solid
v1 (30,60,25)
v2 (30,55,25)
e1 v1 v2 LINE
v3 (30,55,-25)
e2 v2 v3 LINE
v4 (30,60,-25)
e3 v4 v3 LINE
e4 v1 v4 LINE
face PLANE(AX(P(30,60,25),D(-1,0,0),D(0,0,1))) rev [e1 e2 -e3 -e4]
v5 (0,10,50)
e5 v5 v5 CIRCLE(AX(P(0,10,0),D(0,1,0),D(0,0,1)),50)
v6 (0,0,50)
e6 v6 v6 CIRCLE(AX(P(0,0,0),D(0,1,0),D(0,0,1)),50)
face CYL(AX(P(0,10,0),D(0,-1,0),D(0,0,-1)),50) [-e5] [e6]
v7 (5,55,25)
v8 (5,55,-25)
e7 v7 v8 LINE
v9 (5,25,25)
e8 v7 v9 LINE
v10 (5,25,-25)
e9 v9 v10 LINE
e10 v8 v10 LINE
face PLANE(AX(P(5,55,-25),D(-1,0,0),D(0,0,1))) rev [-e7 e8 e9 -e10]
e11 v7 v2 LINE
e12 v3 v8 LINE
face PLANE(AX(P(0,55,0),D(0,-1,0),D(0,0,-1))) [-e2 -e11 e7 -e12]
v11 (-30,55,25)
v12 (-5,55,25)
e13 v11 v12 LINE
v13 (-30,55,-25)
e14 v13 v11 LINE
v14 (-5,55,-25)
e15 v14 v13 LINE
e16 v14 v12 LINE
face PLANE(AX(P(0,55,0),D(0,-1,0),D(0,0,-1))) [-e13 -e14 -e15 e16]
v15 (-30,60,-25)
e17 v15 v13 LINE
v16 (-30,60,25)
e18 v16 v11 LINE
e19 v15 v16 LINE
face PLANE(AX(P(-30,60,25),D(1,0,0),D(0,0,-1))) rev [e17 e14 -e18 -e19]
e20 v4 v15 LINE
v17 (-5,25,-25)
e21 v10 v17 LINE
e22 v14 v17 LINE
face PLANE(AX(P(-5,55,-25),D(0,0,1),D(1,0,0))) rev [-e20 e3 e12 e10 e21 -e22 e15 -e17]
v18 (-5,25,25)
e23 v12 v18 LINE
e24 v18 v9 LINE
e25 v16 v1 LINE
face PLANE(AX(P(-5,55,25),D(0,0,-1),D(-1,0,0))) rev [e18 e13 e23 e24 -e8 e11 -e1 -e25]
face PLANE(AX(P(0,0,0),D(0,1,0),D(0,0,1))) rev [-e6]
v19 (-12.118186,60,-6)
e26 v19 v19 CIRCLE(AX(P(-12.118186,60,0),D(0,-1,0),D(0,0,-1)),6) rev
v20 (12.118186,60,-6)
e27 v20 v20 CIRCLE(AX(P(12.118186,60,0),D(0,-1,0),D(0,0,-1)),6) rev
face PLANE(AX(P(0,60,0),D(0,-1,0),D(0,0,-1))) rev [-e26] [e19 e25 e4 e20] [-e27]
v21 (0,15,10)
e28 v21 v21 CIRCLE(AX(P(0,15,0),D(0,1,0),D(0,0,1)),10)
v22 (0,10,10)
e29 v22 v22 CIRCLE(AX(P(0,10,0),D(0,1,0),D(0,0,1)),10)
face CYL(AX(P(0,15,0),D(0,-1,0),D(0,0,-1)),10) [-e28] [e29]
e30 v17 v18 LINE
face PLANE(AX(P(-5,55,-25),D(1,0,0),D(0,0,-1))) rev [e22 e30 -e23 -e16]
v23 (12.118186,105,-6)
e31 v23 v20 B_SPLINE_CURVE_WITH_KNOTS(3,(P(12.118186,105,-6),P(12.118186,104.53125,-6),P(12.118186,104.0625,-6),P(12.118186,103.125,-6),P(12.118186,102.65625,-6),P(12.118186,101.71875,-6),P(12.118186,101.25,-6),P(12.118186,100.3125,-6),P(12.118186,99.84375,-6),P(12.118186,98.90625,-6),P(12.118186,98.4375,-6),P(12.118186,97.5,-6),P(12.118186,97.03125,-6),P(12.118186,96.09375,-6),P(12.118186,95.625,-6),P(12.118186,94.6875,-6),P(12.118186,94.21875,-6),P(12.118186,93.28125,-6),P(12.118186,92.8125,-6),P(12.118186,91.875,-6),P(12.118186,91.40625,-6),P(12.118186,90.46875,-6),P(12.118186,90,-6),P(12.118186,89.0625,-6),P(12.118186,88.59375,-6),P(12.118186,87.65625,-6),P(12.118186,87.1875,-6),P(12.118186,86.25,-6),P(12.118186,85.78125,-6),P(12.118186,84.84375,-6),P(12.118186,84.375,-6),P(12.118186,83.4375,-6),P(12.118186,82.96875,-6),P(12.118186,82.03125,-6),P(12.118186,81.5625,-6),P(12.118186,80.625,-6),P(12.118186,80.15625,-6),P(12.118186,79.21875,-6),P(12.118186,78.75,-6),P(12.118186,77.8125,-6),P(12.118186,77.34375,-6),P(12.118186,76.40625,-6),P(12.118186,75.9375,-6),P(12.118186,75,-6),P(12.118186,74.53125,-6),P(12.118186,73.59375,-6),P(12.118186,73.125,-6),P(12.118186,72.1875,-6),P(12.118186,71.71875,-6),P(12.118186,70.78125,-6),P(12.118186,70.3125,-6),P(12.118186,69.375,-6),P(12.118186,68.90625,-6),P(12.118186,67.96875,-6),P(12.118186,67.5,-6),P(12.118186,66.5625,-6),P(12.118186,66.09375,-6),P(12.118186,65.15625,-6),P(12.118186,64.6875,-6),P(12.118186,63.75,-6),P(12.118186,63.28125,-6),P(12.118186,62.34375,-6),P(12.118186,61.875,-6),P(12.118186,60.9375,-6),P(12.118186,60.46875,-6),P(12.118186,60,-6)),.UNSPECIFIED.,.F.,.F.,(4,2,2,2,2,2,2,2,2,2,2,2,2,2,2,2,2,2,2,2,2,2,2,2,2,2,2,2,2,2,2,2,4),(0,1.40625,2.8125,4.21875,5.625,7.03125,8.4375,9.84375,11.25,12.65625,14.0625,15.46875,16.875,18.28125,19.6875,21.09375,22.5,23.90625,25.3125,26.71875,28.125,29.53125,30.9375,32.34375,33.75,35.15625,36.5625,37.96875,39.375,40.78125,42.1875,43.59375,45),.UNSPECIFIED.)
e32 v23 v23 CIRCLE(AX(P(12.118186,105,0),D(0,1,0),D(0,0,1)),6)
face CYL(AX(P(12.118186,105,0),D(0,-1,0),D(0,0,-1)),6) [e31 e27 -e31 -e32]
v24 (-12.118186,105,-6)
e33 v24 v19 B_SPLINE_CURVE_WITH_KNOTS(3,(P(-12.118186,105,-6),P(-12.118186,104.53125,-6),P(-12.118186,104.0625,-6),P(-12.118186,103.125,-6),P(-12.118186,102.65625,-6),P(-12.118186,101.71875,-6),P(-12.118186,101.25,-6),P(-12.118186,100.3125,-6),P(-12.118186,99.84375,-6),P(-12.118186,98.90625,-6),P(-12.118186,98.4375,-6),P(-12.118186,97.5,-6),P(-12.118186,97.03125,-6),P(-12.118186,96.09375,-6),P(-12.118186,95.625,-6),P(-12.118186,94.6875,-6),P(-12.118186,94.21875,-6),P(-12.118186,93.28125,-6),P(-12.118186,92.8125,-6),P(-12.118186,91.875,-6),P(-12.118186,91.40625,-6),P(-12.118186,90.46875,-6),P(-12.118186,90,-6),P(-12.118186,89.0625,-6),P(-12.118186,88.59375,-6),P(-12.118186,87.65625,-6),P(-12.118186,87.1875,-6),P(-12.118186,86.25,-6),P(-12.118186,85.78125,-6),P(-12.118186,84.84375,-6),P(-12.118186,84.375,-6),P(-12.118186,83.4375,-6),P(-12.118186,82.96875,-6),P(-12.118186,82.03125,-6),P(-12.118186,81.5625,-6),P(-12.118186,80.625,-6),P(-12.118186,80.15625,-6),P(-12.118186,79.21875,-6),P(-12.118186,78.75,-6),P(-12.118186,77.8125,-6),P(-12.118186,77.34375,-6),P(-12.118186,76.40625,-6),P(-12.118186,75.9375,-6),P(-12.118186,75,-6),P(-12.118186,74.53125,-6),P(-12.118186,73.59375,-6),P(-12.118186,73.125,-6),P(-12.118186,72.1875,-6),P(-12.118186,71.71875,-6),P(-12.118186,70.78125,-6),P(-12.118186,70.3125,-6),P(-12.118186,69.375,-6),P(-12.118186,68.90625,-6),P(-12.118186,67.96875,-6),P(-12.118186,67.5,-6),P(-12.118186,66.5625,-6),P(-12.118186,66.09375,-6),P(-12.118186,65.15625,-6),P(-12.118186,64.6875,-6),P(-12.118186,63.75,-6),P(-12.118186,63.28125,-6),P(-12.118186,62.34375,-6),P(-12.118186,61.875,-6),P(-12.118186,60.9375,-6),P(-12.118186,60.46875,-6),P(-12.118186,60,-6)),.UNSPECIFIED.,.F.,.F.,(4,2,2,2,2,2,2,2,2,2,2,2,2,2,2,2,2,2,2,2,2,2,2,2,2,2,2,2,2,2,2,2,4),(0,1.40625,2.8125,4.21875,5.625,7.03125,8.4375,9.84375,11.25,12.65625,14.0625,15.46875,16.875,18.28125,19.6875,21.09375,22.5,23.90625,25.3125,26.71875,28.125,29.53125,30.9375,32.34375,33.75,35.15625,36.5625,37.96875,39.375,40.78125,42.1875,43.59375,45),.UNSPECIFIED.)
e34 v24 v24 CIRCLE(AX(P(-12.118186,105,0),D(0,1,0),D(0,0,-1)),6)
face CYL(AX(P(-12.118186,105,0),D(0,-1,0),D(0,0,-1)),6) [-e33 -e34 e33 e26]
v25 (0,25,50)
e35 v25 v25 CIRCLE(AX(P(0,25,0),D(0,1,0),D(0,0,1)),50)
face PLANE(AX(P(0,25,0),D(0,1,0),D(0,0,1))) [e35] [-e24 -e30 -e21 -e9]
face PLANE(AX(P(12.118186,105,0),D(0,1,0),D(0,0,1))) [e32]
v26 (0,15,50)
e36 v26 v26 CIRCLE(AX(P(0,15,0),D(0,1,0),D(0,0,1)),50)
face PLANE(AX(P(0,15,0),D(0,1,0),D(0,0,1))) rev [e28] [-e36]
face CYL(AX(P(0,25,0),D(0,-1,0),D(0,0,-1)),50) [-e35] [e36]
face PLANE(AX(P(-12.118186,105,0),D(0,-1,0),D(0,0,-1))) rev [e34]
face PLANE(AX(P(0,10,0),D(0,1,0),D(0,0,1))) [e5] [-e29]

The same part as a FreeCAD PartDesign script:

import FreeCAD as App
import Part
import Sketcher
from FreeCAD import Vector
Q = App.Units.Quantity

doc = App.newDocument("Part")
body = doc.addObject("PartDesign::Body", "Body")

# Sketch on XZ plane
sketch1 = doc.addObject("Sketcher::SketchObject", "Sketch")
body.addObject(sketch1)
sketch1.AttachmentSupport = (doc.XZ_Plane, [""])
sketch1.MapMode = "FlatFace"
sketch1.addGeometry(Part.Circle(Vector(0, 0, 0), Vector(0, 0, 1), 50), False)
sketch1.addConstraint(Sketcher.Constraint("Coincident", 0, 3, -1, 1))
sketch1.addConstraint(Sketcher.Constraint("Diameter", 0, Q("100 mm")))
pad1 = doc.addObject("PartDesign::Pad", "Pad")
body.addObject(pad1)
pad1.Profile = sketch1
pad1.Length = 10
pad1.Reversed = True

# Sketch on XZ plane
sketch2 = doc.addObject("Sketcher::SketchObject", "Sketch001")
body.addObject(sketch2)
sketch2.AttachmentSupport = (doc.XZ_Plane, [""])
sketch2.MapMode = "FlatFace"
sketch2.AttachmentOffset = App.Placement(Vector(0, 0, -10), App.Rotation())
sketch2.addGeometry(Part.Circle(Vector(0, 0, 0), Vector(0, 0, 1), 10), False)
sketch2.addConstraint(Sketcher.Constraint("Coincident", 0, 3, -1, 1))
sketch2.addConstraint(Sketcher.Constraint("Diameter", 0, Q("20 mm")))
pad2 = doc.addObject("PartDesign::Pad", "Pad001")
body.addObject(pad2)
pad2.Profile = sketch2
pad2.Length = 5
pad2.Reversed = True

# Sketch on XZ plane
sketch3 = doc.addObject("Sketcher::SketchObject", "Sketch002")
body.addObject(sketch3)
sketch3.AttachmentSupport = (doc.XZ_Plane, [""])
sketch3.MapMode = "FlatFace"
sketch3.AttachmentOffset = App.Placement(Vector(0, 0, -15), App.Rotation())
sketch3.addGeometry(Part.Circle(Vector(0, 0, 0), Vector(0, 0, 1), 50), False)
sketch3.addConstraint(Sketcher.Constraint("Coincident", 0, 3, -1, 1))
sketch3.addConstraint(Sketcher.Constraint("Diameter", 0, Q("100 mm")))
pad3 = doc.addObject("PartDesign::Pad", "Pad002")
body.addObject(pad3)
pad3.Profile = sketch3
pad3.Length = 10
pad3.Reversed = True

# Sketch on XZ plane
sketch4 = doc.addObject("Sketcher::SketchObject", "Sketch003")
body.addObject(sketch4)
sketch4.AttachmentSupport = (doc.XZ_Plane, [""])
sketch4.MapMode = "FlatFace"
sketch4.AttachmentOffset = App.Placement(Vector(0, 0, -25), App.Rotation())
sketch4.addGeometry(Part.LineSegment(Vector(-5, -25, 0), Vector(-5, 25, 0)), False)
sketch4.addGeometry(Part.LineSegment(Vector(-5, 25, 0), Vector(5, 25, 0)), False)
sketch4.addGeometry(Part.LineSegment(Vector(5, 25, 0), Vector(5, -25, 0)), False)
sketch4.addGeometry(Part.LineSegment(Vector(5, -25, 0), Vector(-5, -25, 0)), False)
sketch4.addConstraint(Sketcher.Constraint("Coincident", 0, 2, 1, 1))
sketch4.addConstraint(Sketcher.Constraint("Coincident", 1, 2, 2, 1))
sketch4.addConstraint(Sketcher.Constraint("Coincident", 2, 2, 3, 1))
sketch4.addConstraint(Sketcher.Constraint("Coincident", 3, 2, 0, 1))
sketch4.addConstraint(Sketcher.Constraint("Vertical", 0))
sketch4.addConstraint(Sketcher.Constraint("Horizontal", 1))
sketch4.addConstraint(Sketcher.Constraint("Vertical", 2))
sketch4.addConstraint(Sketcher.Constraint("Horizontal", 3))
sketch4.addConstraint(Sketcher.Constraint("Symmetric", 0, 2, 2, 2, -1, 1))
sketch4.addConstraint(Sketcher.Constraint("DistanceX", 1, 1, 1, 2, Q("10 mm")))
sketch4.addConstraint(Sketcher.Constraint("DistanceY", 0, 1, 0, 2, Q("50 mm")))
pad4 = doc.addObject("PartDesign::Pad", "Pad003")
body.addObject(pad4)
pad4.Profile = sketch4
pad4.Length = 30
pad4.Reversed = True

# Sketch on XZ plane
sketch5 = doc.addObject("Sketcher::SketchObject", "Sketch004")
body.addObject(sketch5)
sketch5.AttachmentSupport = (doc.XZ_Plane, [""])
sketch5.MapMode = "FlatFace"
sketch5.AttachmentOffset = App.Placement(Vector(0, 0, -55), App.Rotation())
sketch5.addGeometry(Part.LineSegment(Vector(-30, -25, 0), Vector(-30, 25, 0)), False)
sketch5.addGeometry(Part.LineSegment(Vector(-30, 25, 0), Vector(30, 25, 0)), False)
sketch5.addGeometry(Part.LineSegment(Vector(30, 25, 0), Vector(30, -25, 0)), False)
sketch5.addGeometry(Part.LineSegment(Vector(30, -25, 0), Vector(-30, -25, 0)), False)
sketch5.addConstraint(Sketcher.Constraint("Coincident", 0, 2, 1, 1))
sketch5.addConstraint(Sketcher.Constraint("Coincident", 1, 2, 2, 1))
sketch5.addConstraint(Sketcher.Constraint("Coincident", 2, 2, 3, 1))
sketch5.addConstraint(Sketcher.Constraint("Coincident", 3, 2, 0, 1))
sketch5.addConstraint(Sketcher.Constraint("Vertical", 0))
sketch5.addConstraint(Sketcher.Constraint("Horizontal", 1))
sketch5.addConstraint(Sketcher.Constraint("Vertical", 2))
sketch5.addConstraint(Sketcher.Constraint("Horizontal", 3))
sketch5.addConstraint(Sketcher.Constraint("Symmetric", 0, 2, 2, 2, -1, 1))
sketch5.addConstraint(Sketcher.Constraint("DistanceX", 1, 1, 1, 2, Q("60 mm")))
sketch5.addConstraint(Sketcher.Constraint("DistanceY", 0, 1, 0, 2, Q("50 mm")))
pad5 = doc.addObject("PartDesign::Pad", "Pad004")
body.addObject(pad5)
pad5.Profile = sketch5
pad5.Length = 5
pad5.Reversed = True

# Sketch on XZ plane
sketch6 = doc.addObject("Sketcher::SketchObject", "Sketch005")
body.addObject(sketch6)
sketch6.AttachmentSupport = (doc.XZ_Plane, [""])
sketch6.MapMode = "FlatFace"
sketch6.AttachmentOffset = App.Placement(Vector(0, 0, -60), App.Rotation())
sketch6.addGeometry(Part.Circle(Vector(12.118186, 0, 0), Vector(0, 0, 1), 6), False)
sketch6.addGeometry(Part.Circle(Vector(-12.118186, 0, 0), Vector(0, 0, 1), 6), False)
sketch6.addConstraint(Sketcher.Constraint("Equal", 0, 1))
sketch6.addConstraint(Sketcher.Constraint("Symmetric", 0, 3, 1, 3, -1, 1))
sketch6.addConstraint(Sketcher.Constraint("PointOnObject", 0, 3, -1))
sketch6.addConstraint(Sketcher.Constraint("Diameter", 0, Q("12 mm")))
sketch6.addConstraint(Sketcher.Constraint("DistanceX", 1, 3, 0, 3, Q("24.236371 mm")))
pad6 = doc.addObject("PartDesign::Pad", "Pad005")
body.addObject(pad6)
pad6.Profile = sketch6
pad6.Length = 45
pad6.Reversed = True

doc.recompute()
